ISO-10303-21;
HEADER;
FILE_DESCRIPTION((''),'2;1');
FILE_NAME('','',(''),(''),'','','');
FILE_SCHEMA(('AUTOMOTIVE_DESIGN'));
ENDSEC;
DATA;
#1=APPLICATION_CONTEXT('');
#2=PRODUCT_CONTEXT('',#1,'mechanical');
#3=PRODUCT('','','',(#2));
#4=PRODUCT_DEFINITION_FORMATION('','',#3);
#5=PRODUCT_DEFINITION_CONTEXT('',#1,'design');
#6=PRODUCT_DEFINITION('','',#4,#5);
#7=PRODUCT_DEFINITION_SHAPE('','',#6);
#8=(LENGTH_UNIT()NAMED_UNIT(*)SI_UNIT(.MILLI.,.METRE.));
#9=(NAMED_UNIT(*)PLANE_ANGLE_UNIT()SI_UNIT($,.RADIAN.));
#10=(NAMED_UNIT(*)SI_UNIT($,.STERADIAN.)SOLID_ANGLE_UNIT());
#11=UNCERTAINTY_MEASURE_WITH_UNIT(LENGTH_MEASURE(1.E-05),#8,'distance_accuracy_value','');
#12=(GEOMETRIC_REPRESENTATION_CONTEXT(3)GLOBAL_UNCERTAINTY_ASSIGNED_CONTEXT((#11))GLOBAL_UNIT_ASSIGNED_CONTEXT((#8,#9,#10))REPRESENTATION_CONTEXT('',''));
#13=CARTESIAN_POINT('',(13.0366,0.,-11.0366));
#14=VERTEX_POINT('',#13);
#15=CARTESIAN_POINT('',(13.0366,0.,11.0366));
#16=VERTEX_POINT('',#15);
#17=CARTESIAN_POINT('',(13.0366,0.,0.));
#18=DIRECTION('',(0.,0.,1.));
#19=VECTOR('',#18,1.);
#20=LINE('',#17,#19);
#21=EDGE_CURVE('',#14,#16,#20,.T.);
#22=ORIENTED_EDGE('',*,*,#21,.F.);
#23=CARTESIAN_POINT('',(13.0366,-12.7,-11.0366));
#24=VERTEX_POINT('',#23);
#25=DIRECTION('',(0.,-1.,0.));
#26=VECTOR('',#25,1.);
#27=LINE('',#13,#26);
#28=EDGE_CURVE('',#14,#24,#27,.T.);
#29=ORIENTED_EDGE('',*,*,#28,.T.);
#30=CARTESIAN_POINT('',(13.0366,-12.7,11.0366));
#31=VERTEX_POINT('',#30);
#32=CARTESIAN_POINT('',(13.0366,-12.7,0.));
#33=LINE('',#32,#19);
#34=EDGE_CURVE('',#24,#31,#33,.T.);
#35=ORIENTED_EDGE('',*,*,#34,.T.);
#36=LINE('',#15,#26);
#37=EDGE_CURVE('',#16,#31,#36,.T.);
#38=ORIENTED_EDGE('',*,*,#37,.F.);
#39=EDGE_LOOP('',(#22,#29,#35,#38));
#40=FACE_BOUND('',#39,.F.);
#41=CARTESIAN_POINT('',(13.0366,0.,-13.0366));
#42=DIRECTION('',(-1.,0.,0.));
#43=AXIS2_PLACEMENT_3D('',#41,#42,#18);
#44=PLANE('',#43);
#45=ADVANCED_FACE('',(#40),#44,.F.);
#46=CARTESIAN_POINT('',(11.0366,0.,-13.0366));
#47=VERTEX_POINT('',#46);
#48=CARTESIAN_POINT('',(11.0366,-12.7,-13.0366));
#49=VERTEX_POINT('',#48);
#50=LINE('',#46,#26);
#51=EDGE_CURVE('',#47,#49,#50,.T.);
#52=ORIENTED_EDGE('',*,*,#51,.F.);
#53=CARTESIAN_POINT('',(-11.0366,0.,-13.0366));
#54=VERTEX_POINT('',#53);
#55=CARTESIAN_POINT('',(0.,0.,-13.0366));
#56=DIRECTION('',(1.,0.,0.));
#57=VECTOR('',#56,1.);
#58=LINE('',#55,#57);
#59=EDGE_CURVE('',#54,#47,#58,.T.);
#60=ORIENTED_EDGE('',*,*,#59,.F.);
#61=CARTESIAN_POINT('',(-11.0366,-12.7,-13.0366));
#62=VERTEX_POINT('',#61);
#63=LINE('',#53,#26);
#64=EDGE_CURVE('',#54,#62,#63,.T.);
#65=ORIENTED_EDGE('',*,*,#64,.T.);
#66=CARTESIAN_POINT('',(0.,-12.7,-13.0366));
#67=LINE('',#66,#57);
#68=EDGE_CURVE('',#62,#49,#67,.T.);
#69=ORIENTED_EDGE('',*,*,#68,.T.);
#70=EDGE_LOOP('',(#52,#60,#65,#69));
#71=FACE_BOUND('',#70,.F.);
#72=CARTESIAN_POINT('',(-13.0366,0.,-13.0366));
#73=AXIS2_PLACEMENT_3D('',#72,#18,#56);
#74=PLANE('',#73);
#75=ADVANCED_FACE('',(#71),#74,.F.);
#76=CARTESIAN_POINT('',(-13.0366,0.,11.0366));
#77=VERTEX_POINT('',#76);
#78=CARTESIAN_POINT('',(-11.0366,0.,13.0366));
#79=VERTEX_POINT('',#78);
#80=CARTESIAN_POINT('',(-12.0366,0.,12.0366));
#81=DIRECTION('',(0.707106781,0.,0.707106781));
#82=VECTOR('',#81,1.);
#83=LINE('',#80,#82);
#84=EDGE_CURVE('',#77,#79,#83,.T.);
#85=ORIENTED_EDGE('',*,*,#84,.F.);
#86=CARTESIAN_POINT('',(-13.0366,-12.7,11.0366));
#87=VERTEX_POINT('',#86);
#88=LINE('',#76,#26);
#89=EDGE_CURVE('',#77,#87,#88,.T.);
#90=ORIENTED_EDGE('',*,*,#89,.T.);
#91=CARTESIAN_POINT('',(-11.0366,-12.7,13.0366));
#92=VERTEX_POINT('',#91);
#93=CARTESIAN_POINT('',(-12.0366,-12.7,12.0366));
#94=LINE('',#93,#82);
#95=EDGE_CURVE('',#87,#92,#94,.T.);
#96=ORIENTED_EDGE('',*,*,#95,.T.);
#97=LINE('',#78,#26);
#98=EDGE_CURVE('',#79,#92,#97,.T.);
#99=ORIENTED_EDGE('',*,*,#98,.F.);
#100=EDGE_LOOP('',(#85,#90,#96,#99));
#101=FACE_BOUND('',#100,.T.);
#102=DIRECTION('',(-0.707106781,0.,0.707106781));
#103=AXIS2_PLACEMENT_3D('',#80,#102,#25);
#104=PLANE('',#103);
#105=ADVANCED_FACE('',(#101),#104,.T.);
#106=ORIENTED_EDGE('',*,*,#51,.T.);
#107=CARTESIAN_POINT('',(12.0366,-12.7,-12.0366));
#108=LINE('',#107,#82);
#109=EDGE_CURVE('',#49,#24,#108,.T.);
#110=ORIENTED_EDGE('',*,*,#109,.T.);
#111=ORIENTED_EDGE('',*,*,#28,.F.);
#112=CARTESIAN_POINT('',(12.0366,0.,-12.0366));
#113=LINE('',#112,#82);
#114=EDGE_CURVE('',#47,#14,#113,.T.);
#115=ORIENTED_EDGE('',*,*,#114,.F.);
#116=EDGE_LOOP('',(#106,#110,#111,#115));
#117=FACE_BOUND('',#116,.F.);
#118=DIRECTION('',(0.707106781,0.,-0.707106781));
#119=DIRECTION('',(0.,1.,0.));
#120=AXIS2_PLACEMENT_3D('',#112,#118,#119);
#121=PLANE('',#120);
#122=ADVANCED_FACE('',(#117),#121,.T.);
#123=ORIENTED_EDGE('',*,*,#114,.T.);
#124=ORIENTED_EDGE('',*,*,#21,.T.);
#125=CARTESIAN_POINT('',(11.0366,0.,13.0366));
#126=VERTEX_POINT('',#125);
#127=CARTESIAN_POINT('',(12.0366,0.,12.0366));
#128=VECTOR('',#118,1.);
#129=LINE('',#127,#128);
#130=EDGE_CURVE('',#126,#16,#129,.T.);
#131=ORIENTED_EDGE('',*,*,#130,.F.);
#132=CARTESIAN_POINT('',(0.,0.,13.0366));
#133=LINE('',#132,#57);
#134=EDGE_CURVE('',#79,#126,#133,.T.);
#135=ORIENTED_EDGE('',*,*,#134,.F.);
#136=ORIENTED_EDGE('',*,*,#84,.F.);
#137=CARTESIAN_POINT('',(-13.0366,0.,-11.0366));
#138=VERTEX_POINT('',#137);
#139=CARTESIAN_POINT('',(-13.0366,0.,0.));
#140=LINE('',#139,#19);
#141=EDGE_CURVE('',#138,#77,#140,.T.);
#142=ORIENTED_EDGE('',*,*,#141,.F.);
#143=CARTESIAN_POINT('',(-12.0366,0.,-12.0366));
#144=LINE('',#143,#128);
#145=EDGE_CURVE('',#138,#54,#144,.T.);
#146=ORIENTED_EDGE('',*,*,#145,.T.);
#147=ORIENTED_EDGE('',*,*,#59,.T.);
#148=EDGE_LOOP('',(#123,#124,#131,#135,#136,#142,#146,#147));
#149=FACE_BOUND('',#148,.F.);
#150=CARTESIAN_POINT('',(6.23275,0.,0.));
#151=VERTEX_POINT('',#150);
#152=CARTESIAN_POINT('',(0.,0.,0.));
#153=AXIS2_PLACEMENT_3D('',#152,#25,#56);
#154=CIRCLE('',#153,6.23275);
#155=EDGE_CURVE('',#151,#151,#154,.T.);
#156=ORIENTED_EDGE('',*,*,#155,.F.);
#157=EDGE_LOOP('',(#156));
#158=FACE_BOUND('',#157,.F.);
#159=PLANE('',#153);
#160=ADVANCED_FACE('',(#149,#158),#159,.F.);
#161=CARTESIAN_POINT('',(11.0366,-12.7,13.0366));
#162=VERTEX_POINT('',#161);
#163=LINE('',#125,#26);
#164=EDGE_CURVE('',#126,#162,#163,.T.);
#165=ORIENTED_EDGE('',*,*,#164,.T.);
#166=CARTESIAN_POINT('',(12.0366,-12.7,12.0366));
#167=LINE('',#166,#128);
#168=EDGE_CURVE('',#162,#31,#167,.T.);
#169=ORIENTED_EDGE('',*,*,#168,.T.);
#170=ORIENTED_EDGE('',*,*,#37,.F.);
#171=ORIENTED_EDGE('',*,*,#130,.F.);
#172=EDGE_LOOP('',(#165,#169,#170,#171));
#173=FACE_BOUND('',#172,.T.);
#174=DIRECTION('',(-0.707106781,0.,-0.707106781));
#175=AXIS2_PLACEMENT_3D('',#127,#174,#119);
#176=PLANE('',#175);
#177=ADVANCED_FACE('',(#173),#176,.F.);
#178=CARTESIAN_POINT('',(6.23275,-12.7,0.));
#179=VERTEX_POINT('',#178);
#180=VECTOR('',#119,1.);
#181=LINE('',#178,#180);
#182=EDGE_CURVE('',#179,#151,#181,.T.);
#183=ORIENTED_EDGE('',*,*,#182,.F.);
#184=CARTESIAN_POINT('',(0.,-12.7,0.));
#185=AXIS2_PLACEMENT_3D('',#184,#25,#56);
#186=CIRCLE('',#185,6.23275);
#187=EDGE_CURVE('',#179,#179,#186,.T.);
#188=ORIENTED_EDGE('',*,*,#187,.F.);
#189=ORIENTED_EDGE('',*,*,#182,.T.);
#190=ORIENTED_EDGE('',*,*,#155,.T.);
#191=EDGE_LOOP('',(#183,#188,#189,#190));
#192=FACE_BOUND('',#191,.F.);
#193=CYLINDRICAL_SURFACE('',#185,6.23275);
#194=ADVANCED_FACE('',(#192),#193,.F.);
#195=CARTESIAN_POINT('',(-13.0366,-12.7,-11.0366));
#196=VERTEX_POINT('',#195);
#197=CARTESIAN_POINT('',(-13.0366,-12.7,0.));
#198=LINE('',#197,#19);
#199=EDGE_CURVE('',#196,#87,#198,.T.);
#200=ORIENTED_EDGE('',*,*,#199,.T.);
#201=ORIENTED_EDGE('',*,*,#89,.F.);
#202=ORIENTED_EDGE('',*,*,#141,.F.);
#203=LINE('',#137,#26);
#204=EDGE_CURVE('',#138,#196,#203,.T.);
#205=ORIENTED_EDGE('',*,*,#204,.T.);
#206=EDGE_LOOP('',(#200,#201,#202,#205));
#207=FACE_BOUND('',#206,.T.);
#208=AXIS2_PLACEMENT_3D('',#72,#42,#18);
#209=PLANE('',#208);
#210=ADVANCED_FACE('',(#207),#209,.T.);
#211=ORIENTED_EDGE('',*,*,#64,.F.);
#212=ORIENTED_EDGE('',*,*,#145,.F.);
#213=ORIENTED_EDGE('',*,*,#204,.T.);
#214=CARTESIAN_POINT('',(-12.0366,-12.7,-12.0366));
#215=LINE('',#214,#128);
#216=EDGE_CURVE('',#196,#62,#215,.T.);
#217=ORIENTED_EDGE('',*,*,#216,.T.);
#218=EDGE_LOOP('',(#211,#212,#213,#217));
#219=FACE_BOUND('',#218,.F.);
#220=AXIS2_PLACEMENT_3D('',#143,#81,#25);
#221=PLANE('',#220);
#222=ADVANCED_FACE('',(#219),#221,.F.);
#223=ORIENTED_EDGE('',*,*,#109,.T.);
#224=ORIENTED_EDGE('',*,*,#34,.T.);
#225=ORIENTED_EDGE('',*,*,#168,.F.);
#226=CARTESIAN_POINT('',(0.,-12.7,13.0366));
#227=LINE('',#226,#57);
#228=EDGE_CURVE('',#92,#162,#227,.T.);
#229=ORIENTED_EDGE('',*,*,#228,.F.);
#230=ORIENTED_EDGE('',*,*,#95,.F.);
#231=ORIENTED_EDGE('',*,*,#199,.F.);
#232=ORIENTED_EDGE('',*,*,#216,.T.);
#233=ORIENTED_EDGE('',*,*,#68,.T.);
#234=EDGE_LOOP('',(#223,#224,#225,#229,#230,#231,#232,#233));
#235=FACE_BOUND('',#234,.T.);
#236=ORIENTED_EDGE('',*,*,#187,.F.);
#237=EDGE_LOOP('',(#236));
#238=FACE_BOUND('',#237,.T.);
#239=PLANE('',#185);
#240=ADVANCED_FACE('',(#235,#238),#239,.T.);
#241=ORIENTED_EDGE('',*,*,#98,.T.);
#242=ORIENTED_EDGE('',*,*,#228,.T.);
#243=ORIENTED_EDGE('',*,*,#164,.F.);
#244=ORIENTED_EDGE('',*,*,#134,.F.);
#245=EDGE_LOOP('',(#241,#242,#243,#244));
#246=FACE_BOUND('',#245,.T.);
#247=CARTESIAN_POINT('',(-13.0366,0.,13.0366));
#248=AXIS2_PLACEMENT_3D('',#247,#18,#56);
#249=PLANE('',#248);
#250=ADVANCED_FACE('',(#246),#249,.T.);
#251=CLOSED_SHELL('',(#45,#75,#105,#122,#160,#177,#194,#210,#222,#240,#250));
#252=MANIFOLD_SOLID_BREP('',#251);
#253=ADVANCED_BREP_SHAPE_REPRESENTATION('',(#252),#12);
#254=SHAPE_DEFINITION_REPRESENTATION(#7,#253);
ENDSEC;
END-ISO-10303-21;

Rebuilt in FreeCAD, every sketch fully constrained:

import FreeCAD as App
import Part
import Sketcher

V = App.Vector


def edges_at(feature, points):
    """Names of the edges that pass closest to the given points."""
    edges = feature.Shape.Edges
    near = lambda p: min(range(len(edges)), key=lambda i: edges[i].distToShape(Part.Vertex(*p))[0])
    return sorted({f"Edge{near(p) + 1}" for p in points})


def add_polygon(sketch, points):
    """Adds a closed chain of lines whose ends are joined by coincident constraints."""
    first, n = sketch.GeometryCount, len(points)
    for a, b in zip(points, points[1:] + points[:1]):
        sketch.addGeometry(Part.LineSegment(App.Vector(*a, 0), App.Vector(*b, 0)), False)
    for i in range(n):
        sketch.addConstraint(Sketcher.Constraint("Coincident", first + i, 2, first + (i + 1) % n, 1))

doc = App.newDocument("Part")
params = doc.addObject("Spreadsheet::Sheet", "Params")
for row, (alias, value) in enumerate([
    ("pad1_length", "12.7 mm"),
    ("chamfer_size", "2 mm"),
], start=1):
    params.set(f"A{row}", alias)
    params.set(f"B{row}", "=" + value)
    params.setAlias(f"B{row}", alias)

body = doc.addObject("PartDesign::Body", "Body")

sketch1 = body.newObject("Sketcher::SketchObject", "Sketch")
sketch1.AttachmentSupport = (doc.getObject("XZ_Plane"), [""])
sketch1.MapMode = "FlatFace"
add_polygon(sketch1, [(-13, 13), (-13, -13), (13, -13), (13, 13)])
sketch1.addConstraint([
    Sketcher.Constraint("Vertical", 0),
    Sketcher.Constraint("Horizontal", 1),
    Sketcher.Constraint("Vertical", 2),
    Sketcher.Constraint("Horizontal", 3),
    Sketcher.Constraint("Symmetric", 0, 2, 2, 2, -1, 1),
    Sketcher.Constraint("Equal", 3, 0),
    Sketcher.Constraint("DistanceX", 1, 1, 1, 2, 26.0732),
])
pad1 = body.newObject("PartDesign::Pad", "Pad")
pad1.Profile = sketch1
pad1.setExpression("Length", "Params.pad1_length")

sketch2 = body.newObject("Sketcher::SketchObject", "Sketch001")
sketch2.AttachmentSupport = (doc.getObject("XZ_Plane"), [""])
sketch2.MapMode = "FlatFace"
sketch2.AttachmentOffset = App.Placement(V(0, 0, 12.7), App.Rotation())
sketch2.addGeometry(Part.Circle(V(0, 0, 0), V(0, 0, 1), 6), False)
sketch2.addConstraint([
    Sketcher.Constraint("Coincident", 0, 3, -1, 1),
    Sketcher.Constraint("Diameter", 0, 12.4655),
])
pocket1 = body.newObject("PartDesign::Pocket", "Pocket")
pocket1.Profile = sketch2
pocket1.Type = "ThroughAll"
doc.recompute()

chamfer = body.newObject("PartDesign::Chamfer", "Chamfer")
chamfer.Base = (pocket1, edges_at(pocket1, [
    (13.037, -6.35, -13.037),
    (13.037, -6.35, 13.037),
    (-13.037, -6.35, -13.037),
    (-13.037, -6.35, 13.037),
]))
chamfer.setExpression("Size", "Params.chamfer_size")

doc.recompute()
